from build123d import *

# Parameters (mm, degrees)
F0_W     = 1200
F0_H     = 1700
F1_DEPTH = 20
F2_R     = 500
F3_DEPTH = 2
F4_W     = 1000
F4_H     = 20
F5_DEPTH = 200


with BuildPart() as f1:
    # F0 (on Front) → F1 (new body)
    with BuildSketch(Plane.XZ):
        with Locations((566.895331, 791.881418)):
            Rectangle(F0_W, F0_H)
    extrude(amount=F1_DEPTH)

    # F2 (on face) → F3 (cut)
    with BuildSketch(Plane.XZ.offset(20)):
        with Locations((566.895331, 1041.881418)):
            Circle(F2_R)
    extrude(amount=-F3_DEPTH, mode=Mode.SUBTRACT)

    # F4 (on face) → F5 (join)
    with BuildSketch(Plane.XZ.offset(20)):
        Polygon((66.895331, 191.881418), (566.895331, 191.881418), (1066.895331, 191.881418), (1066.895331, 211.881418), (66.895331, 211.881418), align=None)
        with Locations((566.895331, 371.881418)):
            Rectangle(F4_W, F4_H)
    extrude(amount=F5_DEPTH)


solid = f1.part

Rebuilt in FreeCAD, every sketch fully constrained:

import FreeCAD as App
import Part
import Sketcher
from FreeCAD import Vector

doc = App.newDocument("Part")
body = doc.addObject("PartDesign::Body", "Body")

# Sketch on XZ plane
sketch1 = doc.addObject("Sketcher::SketchObject", "Sketch")
body.addObject(sketch1)
sketch1.AttachmentSupport = (doc.XZ_Plane, [""])
sketch1.MapMode = "FlatFace"
sketch1.addGeometry([
    Part.LineSegment(Vector(-33, 1642, 0), Vector(-33, -58, 0)),
    Part.LineSegment(Vector(-33, -58, 0), Vector(1167, -58, 0)),
    Part.LineSegment(Vector(1167, -58, 0), Vector(1167, 1642, 0)),
    Part.LineSegment(Vector(1167, 1642, 0), Vector(-33, 1642, 0)),
], False)
sketch1.addConstraint([
    Sketcher.Constraint("Coincident", 0, 2, 1, 1),
    Sketcher.Constraint("Coincident", 1, 2, 2, 1),
    Sketcher.Constraint("Coincident", 2, 2, 3, 1),
    Sketcher.Constraint("Coincident", 3, 2, 0, 1),
    Sketcher.Constraint("Vertical", 0),
    Sketcher.Constraint("Horizontal", 1),
    Sketcher.Constraint("Vertical", 2),
    Sketcher.Constraint("Horizontal", 3),
    Sketcher.Constraint("DistanceX", 1, 1, 1, 2, 1200.0),
    Sketcher.Constraint("DistanceY", 0, 2, 0, 1, 1700.0),
    Sketcher.Constraint("DistanceX", 0, 2, -1, 1, 33.104669),
    Sketcher.Constraint("DistanceY", -1, 1, 2, 2, 1641.881418),
])
pad1 = doc.addObject("PartDesign::Pad", "Pad")
body.addObject(pad1)
pad1.Profile = sketch1
pad1.Length = 20

# Sketch on XZ plane
sketch2 = doc.addObject("Sketcher::SketchObject", "Sketch001")
body.addObject(sketch2)
sketch2.AttachmentSupport = (doc.XZ_Plane, [""])
sketch2.MapMode = "FlatFace"
sketch2.AttachmentOffset = App.Placement(Vector(0, 0, 20), App.Rotation())
sketch2.addGeometry(Part.Circle(Vector(567, 1042, 0), Vector(0, 0, 1), 500), False)
sketch2.addConstraint([
    Sketcher.Constraint("Diameter", 0, 1000.0),
    Sketcher.Constraint("DistanceX", -1, 1, 0, 3, 566.895331),
    Sketcher.Constraint("DistanceY", -1, 1, 0, 3, 1041.881418),
])
pocket1 = doc.addObject("PartDesign::Pocket", "Pocket")
body.addObject(pocket1)
pocket1.Profile = sketch2
pocket1.Length = 2

# Sketch on XZ plane
sketch3 = doc.addObject("Sketcher::SketchObject", "Sketch002")
body.addObject(sketch3)
sketch3.AttachmentSupport = (doc.XZ_Plane, [""])
sketch3.MapMode = "FlatFace"
sketch3.AttachmentOffset = App.Placement(Vector(0, 0, 20), App.Rotation())
sketch3.addGeometry([
    Part.LineSegment(Vector(67, 192, 0), Vector(1067, 192, 0)),  # 0
    Part.LineSegment(Vector(1067, 192, 0), Vector(1067, 212, 0)),  # 1
    Part.LineSegment(Vector(1067, 212, 0), Vector(67, 212, 0)),  # 2
    Part.LineSegment(Vector(67, 212, 0), Vector(67, 192, 0)),  # 3
    Part.LineSegment(Vector(67, 382, 0), Vector(67, 362, 0)),  # 4
    Part.LineSegment(Vector(67, 362, 0), Vector(1067, 362, 0)),  # 5
    Part.LineSegment(Vector(1067, 362, 0), Vector(1067, 382, 0)),  # 6
    Part.LineSegment(Vector(1067, 382, 0), Vector(67, 382, 0)),  # 7
], False)
sketch3.addConstraint([
    Sketcher.Constraint("Coincident", 0, 2, 1, 1),
    Sketcher.Constraint("Coincident", 1, 2, 2, 1),
    Sketcher.Constraint("Coincident", 2, 2, 3, 1),
    Sketcher.Constraint("Coincident", 3, 2, 0, 1),
    Sketcher.Constraint("Coincident", 4, 2, 5, 1),
    Sketcher.Constraint("Coincident", 5, 2, 6, 1),
    Sketcher.Constraint("Coincident", 6, 2, 7, 1),
    Sketcher.Constraint("Coincident", 7, 2, 4, 1),
    Sketcher.Constraint("Horizontal", 0),
    Sketcher.Constraint("Vertical", 1),
    Sketcher.Constraint("Horizontal", 2),
    Sketcher.Constraint("Vertical", 3),
    Sketcher.Constraint("Vertical", 4),
    Sketcher.Constraint("Horizontal", 5),
    Sketcher.Constraint("Vertical", 6),
    Sketcher.Constraint("Horizontal", 7),
    Sketcher.Constraint("Vertical", 3, 2, 4, 2),
    Sketcher.Constraint("Vertical", 1, 2, 5, 2),
    Sketcher.Constraint("Equal", 3, 4),
    Sketcher.Constraint("DistanceX", 0, 1, 0, 2, 1000.0),
    Sketcher.Constraint("DistanceY", 1, 1, 1, 2, 20.0),
    Sketcher.Constraint("DistanceY", 2, 2, 4, 2, 150.0),
    Sketcher.Constraint("DistanceX", -1, 1, 0, 2, 1066.895331),
    Sketcher.Constraint("DistanceY", -1, 1, 0, 2, 191.881418),
])
pad2 = doc.addObject("PartDesign::Pad", "Pad001")
body.addObject(pad2)
pad2.Profile = sketch3
pad2.Length = 200

doc.recompute()
